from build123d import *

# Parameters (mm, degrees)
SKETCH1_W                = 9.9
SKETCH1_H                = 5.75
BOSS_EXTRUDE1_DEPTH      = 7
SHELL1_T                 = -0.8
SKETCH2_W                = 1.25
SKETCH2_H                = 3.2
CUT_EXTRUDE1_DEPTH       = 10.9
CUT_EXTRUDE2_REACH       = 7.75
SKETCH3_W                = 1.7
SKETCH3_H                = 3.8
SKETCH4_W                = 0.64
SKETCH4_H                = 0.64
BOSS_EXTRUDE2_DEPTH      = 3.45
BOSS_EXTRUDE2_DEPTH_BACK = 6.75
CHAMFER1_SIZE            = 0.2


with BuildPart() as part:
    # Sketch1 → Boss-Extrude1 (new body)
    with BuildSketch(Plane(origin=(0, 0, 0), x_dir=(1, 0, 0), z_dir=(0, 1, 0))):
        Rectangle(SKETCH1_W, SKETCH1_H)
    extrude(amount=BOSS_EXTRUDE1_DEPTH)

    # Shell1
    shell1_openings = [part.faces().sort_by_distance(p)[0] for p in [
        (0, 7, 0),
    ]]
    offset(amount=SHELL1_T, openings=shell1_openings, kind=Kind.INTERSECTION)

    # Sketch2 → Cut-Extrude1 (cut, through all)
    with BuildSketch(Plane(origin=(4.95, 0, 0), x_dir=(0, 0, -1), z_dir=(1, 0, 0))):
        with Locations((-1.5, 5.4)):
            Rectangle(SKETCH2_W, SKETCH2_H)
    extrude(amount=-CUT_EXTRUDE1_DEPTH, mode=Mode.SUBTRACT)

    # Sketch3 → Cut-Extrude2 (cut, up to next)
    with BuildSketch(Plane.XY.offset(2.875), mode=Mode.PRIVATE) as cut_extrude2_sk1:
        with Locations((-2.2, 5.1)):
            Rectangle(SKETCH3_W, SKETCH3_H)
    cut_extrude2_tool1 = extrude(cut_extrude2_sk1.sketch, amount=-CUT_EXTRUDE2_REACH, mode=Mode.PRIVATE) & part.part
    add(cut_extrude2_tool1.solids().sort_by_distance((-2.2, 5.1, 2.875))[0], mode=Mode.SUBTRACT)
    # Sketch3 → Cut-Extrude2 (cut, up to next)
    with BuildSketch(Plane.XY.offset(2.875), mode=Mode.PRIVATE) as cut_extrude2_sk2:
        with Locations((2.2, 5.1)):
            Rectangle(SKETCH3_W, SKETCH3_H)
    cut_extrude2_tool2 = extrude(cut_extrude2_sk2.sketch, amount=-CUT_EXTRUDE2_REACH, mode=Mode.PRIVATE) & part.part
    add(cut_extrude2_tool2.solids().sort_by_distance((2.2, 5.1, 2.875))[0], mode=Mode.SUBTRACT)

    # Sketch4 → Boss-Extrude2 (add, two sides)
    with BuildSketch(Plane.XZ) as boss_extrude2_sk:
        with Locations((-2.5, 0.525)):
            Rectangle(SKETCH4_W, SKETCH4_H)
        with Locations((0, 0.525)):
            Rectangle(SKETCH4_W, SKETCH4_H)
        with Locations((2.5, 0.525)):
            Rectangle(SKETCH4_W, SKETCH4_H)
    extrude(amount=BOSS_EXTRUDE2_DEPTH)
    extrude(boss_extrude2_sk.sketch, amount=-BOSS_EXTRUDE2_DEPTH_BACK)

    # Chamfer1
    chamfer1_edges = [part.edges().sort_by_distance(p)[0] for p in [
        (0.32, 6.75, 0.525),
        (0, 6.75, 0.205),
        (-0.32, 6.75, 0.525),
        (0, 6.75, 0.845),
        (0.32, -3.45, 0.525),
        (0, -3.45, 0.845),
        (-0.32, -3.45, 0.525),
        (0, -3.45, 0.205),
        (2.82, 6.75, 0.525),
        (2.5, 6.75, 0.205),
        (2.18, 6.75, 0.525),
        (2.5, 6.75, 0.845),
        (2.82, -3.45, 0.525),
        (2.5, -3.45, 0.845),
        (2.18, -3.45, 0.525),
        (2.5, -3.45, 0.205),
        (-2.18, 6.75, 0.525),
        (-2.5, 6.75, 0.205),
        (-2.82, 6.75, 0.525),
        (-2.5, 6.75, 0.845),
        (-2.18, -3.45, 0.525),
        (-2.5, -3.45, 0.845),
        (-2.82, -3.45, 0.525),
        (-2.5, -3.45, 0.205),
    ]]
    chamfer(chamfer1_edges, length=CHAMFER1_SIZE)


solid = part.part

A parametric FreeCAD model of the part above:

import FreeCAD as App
import Part
import Sketcher

V = App.Vector
Q = App.Units.Quantity


def edges_at(feature, points):
    """Names of the edges that pass closest to the given points."""
    edges = feature.Shape.Edges
    near = lambda p: min(range(len(edges)), key=lambda i: edges[i].distToShape(Part.Vertex(*p))[0])
    return sorted({f"Edge{near(p) + 1}" for p in points})


def faces_at(feature, points):
    """Names of the faces that lie closest to the given points."""
    faces = feature.Shape.Faces
    near = lambda p: min(range(len(faces)), key=lambda i: faces[i].distToShape(Part.Vertex(*p))[0])
    return sorted({f"Face{near(p) + 1}" for p in points})

doc = App.newDocument("Part")
params = doc.addObject("Spreadsheet::Sheet", "Params")
for row, (alias, value) in enumerate([
    ("sketch1_width", "9.9 mm"),
    ("sketch1_height", "5.75 mm"),
    ("pad1_length", "7 mm"),
    ("thickness_wall", "0.8 mm"),
    ("sketch2_width", "3.2 mm"),
    ("sketch2_height", "1.25 mm"),
    ("sketch3_width", "1.7 mm"),
    ("sketch3_height", "3.8 mm"),
    ("pocket2_length", "0.8 mm"),
    ("sketch4_width", "1.7 mm"),
    ("sketch4_height", "3.8 mm"),
    ("pocket3_length", "0.8 mm"),
    ("sketch5_width", "0.64 mm"),
    ("pad2_length", "3.45 mm"),
    ("pad2_length2", "6.75 mm"),
    ("chamfer_size", "0.2 mm"),
], start=1):
    params.set(f"A{row}", alias)
    params.set(f"B{row}", "=" + value)
    params.setAlias(f"B{row}", alias)

body = doc.addObject("PartDesign::Body", "Body")

# Sketch on XZ plane
sketch1 = doc.addObject("Sketcher::SketchObject", "Sketch")
body.addObject(sketch1)
sketch1.AttachmentSupport = (doc.XZ_Plane, [""])
sketch1.MapMode = "FlatFace"
sketch1.addGeometry(Part.LineSegment(V(-5, -3, 0), V(-5, 3, 0)), False)
sketch1.addGeometry(Part.LineSegment(V(-5, 3, 0), V(5, 3, 0)), False)
sketch1.addGeometry(Part.LineSegment(V(5, 3, 0), V(5, -3, 0)), False)
sketch1.addGeometry(Part.LineSegment(V(5, -3, 0), V(-5, -3, 0)), False)
sketch1.addConstraint(Sketcher.Constraint("Coincident", 0, 2, 1, 1))
sketch1.addConstraint(Sketcher.Constraint("Coincident", 1, 2, 2, 1))
sketch1.addConstraint(Sketcher.Constraint("Coincident", 2, 2, 3, 1))
sketch1.addConstraint(Sketcher.Constraint("Coincident", 3, 2, 0, 1))
sketch1.addConstraint(Sketcher.Constraint("Vertical", 0))
sketch1.addConstraint(Sketcher.Constraint("Horizontal", 1))
sketch1.addConstraint(Sketcher.Constraint("Vertical", 2))
sketch1.addConstraint(Sketcher.Constraint("Horizontal", 3))
sketch1.addConstraint(Sketcher.Constraint("Symmetric", 0, 2, 2, 2, -1, 1))
sketch1.addConstraint(Sketcher.Constraint("DistanceX", 1, 1, 1, 2, Q("9.9 mm")))
sketch1.addConstraint(Sketcher.Constraint("DistanceY", 0, 1, 0, 2, Q("5.75 mm")))
sketch1.setExpression("Constraints[9]", "Params.sketch1_width")
sketch1.setExpression("Constraints[10]", "Params.sketch1_height")
pad1 = doc.addObject("PartDesign::Pad", "Pad")
body.addObject(pad1)
pad1.Profile = sketch1
pad1.setExpression("Length", "Params.pad1_length")
pad1.Reversed = True
doc.recompute()

thickness = doc.addObject("PartDesign::Thickness", "Thickness")
body.addObject(thickness)
thickness.Base = (pad1, faces_at(pad1, [(0, 7, 0)]))
thickness.setExpression("Value", "Params.thickness_wall")
thickness.Reversed = True
thickness.Join = "Intersection"

# Sketch on YZ plane
sketch2 = doc.addObject("Sketcher::SketchObject", "Sketch001")
body.addObject(sketch2)
sketch2.AttachmentSupport = (doc.YZ_Plane, [""])
sketch2.MapMode = "FlatFace"
sketch2.AttachmentOffset = App.Placement(V(0, 0, 4.95), App.Rotation())
sketch2.addGeometry(Part.LineSegment(V(7, 2.1, 0), V(3.8, 2.1, 0)), False)
sketch2.addGeometry(Part.LineSegment(V(3.8, 2.1, 0), V(3.8, 0.9, 0)), False)
sketch2.addGeometry(Part.LineSegment(V(3.8, 0.9, 0), V(7, 0.9, 0)), False)
sketch2.addGeometry(Part.LineSegment(V(7, 0.9, 0), V(7, 2.1, 0)), False)
sketch2.addConstraint(Sketcher.Constraint("Coincident", 0, 2, 1, 1))
sketch2.addConstraint(Sketcher.Constraint("Coincident", 1, 2, 2, 1))
sketch2.addConstraint(Sketcher.Constraint("Coincident", 2, 2, 3, 1))
sketch2.addConstraint(Sketcher.Constraint("Coincident", 3, 2, 0, 1))
sketch2.addConstraint(Sketcher.Constraint("Horizontal", 0))
sketch2.addConstraint(Sketcher.Constraint("Vertical", 1))
sketch2.addConstraint(Sketcher.Constraint("Horizontal", 2))
sketch2.addConstraint(Sketcher.Constraint("Vertical", 3))
sketch2.addConstraint(Sketcher.Constraint("DistanceX", 0, 2, 0, 1, Q("3.2 mm")))
sketch2.addConstraint(Sketcher.Constraint("DistanceX", -1, 1, 2, 2, Q("7 mm")))
sketch2.addConstraint(Sketcher.Constraint("DistanceY", 1, 2, 1, 1, Q("1.25 mm")))
sketch2.addConstraint(Sketcher.Constraint("DistanceY", -1, 1, 0, 2, Q("2.125 mm")))
sketch2.setExpression("Constraints[8]", "Params.sketch2_width")
sketch2.setExpression("Constraints[10]", "Params.sketch2_height")
pocket1 = doc.addObject("PartDesign::Pocket", "Pocket")
body.addObject(pocket1)
pocket1.Profile = sketch2
pocket1.Type = "ThroughAll"

# Sketch on XY plane
sketch3 = doc.addObject("Sketcher::SketchObject", "Sketch002")
body.addObject(sketch3)
sketch3.AttachmentSupport = (doc.XY_Plane, [""])
sketch3.MapMode = "FlatFace"
sketch3.AttachmentOffset = App.Placement(V(0, 0, 2.875), App.Rotation())
sketch3.addGeometry(Part.LineSegment(V(-3, 7, 0), V(-3, 3.2, 0)), False)
sketch3.addGeometry(Part.LineSegment(V(-3, 3.2, 0), V(-1.4, 3.2, 0)), False)
sketch3.addGeometry(Part.LineSegment(V(-1.4, 3.2, 0), V(-1.4, 7, 0)), False)
sketch3.addGeometry(Part.LineSegment(V(-1.4, 7, 0), V(-3, 7, 0)), False)
sketch3.addConstraint(Sketcher.Constraint("Coincident", 0, 2, 1, 1))
sketch3.addConstraint(Sketcher.Constraint("Coincident", 1, 2, 2, 1))
sketch3.addConstraint(Sketcher.Constraint("Coincident", 2, 2, 3, 1))
sketch3.addConstraint(Sketcher.Constraint("Coincident", 3, 2, 0, 1))
sketch3.addConstraint(Sketcher.Constraint("Vertical", 0))
sketch3.addConstraint(Sketcher.Constraint("Horizontal", 1))
sketch3.addConstraint(Sketcher.Constraint("Vertical", 2))
sketch3.addConstraint(Sketcher.Constraint("Horizontal", 3))
sketch3.addConstraint(Sketcher.Constraint("DistanceX", 1, 1, 1, 2, Q("1.7 mm")))
sketch3.addConstraint(Sketcher.Constraint("DistanceY", 0, 2, 0, 1, Q("3.8 mm")))
sketch3.addConstraint(Sketcher.Constraint("DistanceY", -1, 1, 2, 2, Q("7 mm")))
sketch3.addConstraint(Sketcher.Constraint("DistanceX", 0, 2, -1, 1, Q("3.05 mm")))
sketch3.setExpression("Constraints[8]", "Params.sketch3_width")
sketch3.setExpression("Constraints[9]", "Params.sketch3_height")
pocket2 = doc.addObject("PartDesign::Pocket", "Pocket001")
body.addObject(pocket2)
pocket2.Profile = sketch3
pocket2.setExpression("Length", "Params.pocket2_length")

# Sketch on XY plane
sketch4 = doc.addObject("Sketcher::SketchObject", "Sketch003")
body.addObject(sketch4)
sketch4.AttachmentSupport = (doc.XY_Plane, [""])
sketch4.MapMode = "FlatFace"
sketch4.AttachmentOffset = App.Placement(V(0, 0, 2.875), App.Rotation())
sketch4.addGeometry(Part.LineSegment(V(1.4, 7, 0), V(1.4, 3.2, 0)), False)
sketch4.addGeometry(Part.LineSegment(V(1.4, 3.2, 0), V(3, 3.2, 0)), False)
sketch4.addGeometry(Part.LineSegment(V(3, 3.2, 0), V(3, 7, 0)), False)
sketch4.addGeometry(Part.LineSegment(V(3, 7, 0), V(1.4, 7, 0)), False)
sketch4.addConstraint(Sketcher.Constraint("Coincident", 0, 2, 1, 1))
sketch4.addConstraint(Sketcher.Constraint("Coincident", 1, 2, 2, 1))
sketch4.addConstraint(Sketcher.Constraint("Coincident", 2, 2, 3, 1))
sketch4.addConstraint(Sketcher.Constraint("Coincident", 3, 2, 0, 1))
sketch4.addConstraint(Sketcher.Constraint("Vertical", 0))
sketch4.addConstraint(Sketcher.Constraint("Horizontal", 1))
sketch4.addConstraint(Sketcher.Constraint("Vertical", 2))
sketch4.addConstraint(Sketcher.Constraint("Horizontal", 3))
sketch4.addConstraint(Sketcher.Constraint("DistanceX", 1, 1, 1, 2, Q("1.7 mm")))
sketch4.addConstraint(Sketcher.Constraint("DistanceY", 0, 2, 0, 1, Q("3.8 mm")))
sketch4.addConstraint(Sketcher.Constraint("DistanceY", -1, 1, 2, 2, Q("7 mm")))
sketch4.addConstraint(Sketcher.Constraint("DistanceX", -1, 1, 0, 2, Q("1.35 mm")))
sketch4.setExpression("Constraints[8]", "Params.sketch4_width")
sketch4.setExpression("Constraints[9]", "Params.sketch4_height")
pocket3 = doc.addObject("PartDesign::Pocket", "Pocket002")
body.addObject(pocket3)
pocket3.Profile = sketch4
pocket3.setExpression("Length", "Params.pocket3_length")

# Sketch on XZ plane
sketch5 = doc.addObject("Sketcher::SketchObject", "Sketch004")
body.addObject(sketch5)
sketch5.AttachmentSupport = (doc.XZ_Plane, [""])
sketch5.MapMode = "FlatFace"
sketch5.addGeometry(Part.LineSegment(V(-2.8, 0.8, 0), V(-2.8, 0.2, 0)), False)
sketch5.addGeometry(Part.LineSegment(V(-2.8, 0.2, 0), V(-2.2, 0.2, 0)), False)
sketch5.addGeometry(Part.LineSegment(V(-2.2, 0.2, 0), V(-2.2, 0.8, 0)), False)
sketch5.addGeometry(Part.LineSegment(V(-2.2, 0.8, 0), V(-2.8, 0.8, 0)), False)
sketch5.addGeometry(Part.LineSegment(V(-0.3, 0.8, 0), V(-0.3, 0.2, 0)), False)
sketch5.addGeometry(Part.LineSegment(V(-0.3, 0.2, 0), V(0.3, 0.2, 0)), False)
sketch5.addGeometry(Part.LineSegment(V(0.3, 0.2, 0), V(0.3, 0.8, 0)), False)
sketch5.addGeometry(Part.LineSegment(V(0.3, 0.8, 0), V(-0.3, 0.8, 0)), False)
sketch5.addGeometry(Part.LineSegment(V(2.2, 0.8, 0), V(2.2, 0.2, 0)), False)
sketch5.addGeometry(Part.LineSegment(V(2.2, 0.2, 0), V(2.8, 0.2, 0)), False)
sketch5.addGeometry(Part.LineSegment(V(2.8, 0.2, 0), V(2.8, 0.8, 0)), False)
sketch5.addGeometry(Part.LineSegment(V(2.8, 0.8, 0), V(2.2, 0.8, 0)), False)
sketch5.addConstraint(Sketcher.Constraint("Coincident", 0, 2, 1, 1))
sketch5.addConstraint(Sketcher.Constraint("Coincident", 1, 2, 2, 1))
sketch5.addConstraint(Sketcher.Constraint("Coincident", 2, 2, 3, 1))
sketch5.addConstraint(Sketcher.Constraint("Coincident", 3, 2, 0, 1))
sketch5.addConstraint(Sketcher.Constraint("Coincident", 4, 2, 5, 1))
sketch5.addConstraint(Sketcher.Constraint("Coincident", 5, 2, 6, 1))
sketch5.addConstraint(Sketcher.Constraint("Coincident", 6, 2, 7, 1))
sketch5.addConstraint(Sketcher.Constraint("Coincident", 7, 2, 4, 1))
sketch5.addConstraint(Sketcher.Constraint("Coincident", 8, 2, 9, 1))
sketch5.addConstraint(Sketcher.Constraint("Coincident", 9, 2, 10, 1))
sketch5.addConstraint(Sketcher.Constraint("Coincident", 10, 2, 11, 1))
sketch5.addConstraint(Sketcher.Constraint("Coincident", 11, 2, 8, 1))
sketch5.addConstraint(Sketcher.Constraint("Vertical", 0))
sketch5.addConstraint(Sketcher.Constraint("Horizontal", 1))
sketch5.addConstraint(Sketcher.Constraint("Vertical", 2))
sketch5.addConstraint(Sketcher.Constraint("Horizontal", 3))
sketch5.addConstraint(Sketcher.Constraint("Vertical", 4))
sketch5.addConstraint(Sketcher.Constraint("Horizontal", 5))
sketch5.addConstraint(Sketcher.Constraint("Vertical", 6))
sketch5.addConstraint(Sketcher.Constraint("Horizontal", 7))
sketch5.addConstraint(Sketcher.Constraint("Vertical", 8))
sketch5.addConstraint(Sketcher.Constraint("Horizontal", 9))
sketch5.addConstraint(Sketcher.Constraint("Vertical", 10))
sketch5.addConstraint(Sketcher.Constraint("Horizontal", 11))
sketch5.addConstraint(Sketcher.Constraint("Symmetric", 1, 2, 8, 2, -2))
sketch5.addConstraint(Sketcher.Constraint("Symmetric", 3, 2, 10, 2, -2))
sketch5.addConstraint(Sketcher.Constraint("Horizontal", 1, 2, 4, 2))
sketch5.addConstraint(Sketcher.Constraint("Horizontal", 3, 2, 6, 2))
sketch5.addConstraint(Sketcher.Constraint("Equal", 3, 5))
sketch5.addConstraint(Sketcher.Constraint("Equal", 11, 0))
sketch5.addConstraint(Sketcher.Constraint("DistanceX", 1, 1, 1, 2, Q("0.64 mm")))
sketch5.addConstraint(Sketcher.Constraint("DistanceX", 0, 2, 4, 2, Q("2.5 mm")))
sketch5.addConstraint(Sketcher.Constraint("DistanceX", 4, 2, 8, 2, Q("2.5 mm")))
sketch5.addConstraint(Sketcher.Constraint("DistanceY", -1, 1, 0, 2, Q("0.205 mm")))
sketch5.setExpression("Constraints[30]", "Params.sketch5_width")
pad2 = doc.addObject("PartDesign::Pad", "Pad001")
body.addObject(pad2)
pad2.Profile = sketch5
pad2.Type = "TwoLengths"
pad2.setExpression("Length", "Params.pad2_length")
pad2.setExpression("Length2", "Params.pad2_length2")
doc.recompute()

chamfer = doc.addObject("PartDesign::Chamfer", "Chamfer")
body.addObject(chamfer)
chamfer.Base = (pad2, edges_at(pad2, [
    (0.32, 6.75, 0.525),
    (0, 6.75, 0.205),
    (-0.32, 6.75, 0.525),
    (0, 6.75, 0.845),
    (0.32, -3.45, 0.525),
    (0, -3.45, 0.845),
    (-0.32, -3.45, 0.525),
    (0, -3.45, 0.205),
    (2.82, 6.75, 0.525),
    (2.5, 6.75, 0.205),
    (2.18, 6.75, 0.525),
    (2.5, 6.75, 0.845),
    (2.82, -3.45, 0.525),
    (2.5, -3.45, 0.845),
    (2.18, -3.45, 0.525),
    (2.5, -3.45, 0.205),
    (-2.18, 6.75, 0.525),
    (-2.5, 6.75, 0.205),
    (-2.82, 6.75, 0.525),
    (-2.5, 6.75, 0.845),
    (-2.18, -3.45, 0.525),
    (-2.5, -3.45, 0.845),
    (-2.82, -3.45, 0.525),
    (-2.5, -3.45, 0.205),
]))
chamfer.setExpression("Size", "Params.chamfer_size")

doc.recompute()
